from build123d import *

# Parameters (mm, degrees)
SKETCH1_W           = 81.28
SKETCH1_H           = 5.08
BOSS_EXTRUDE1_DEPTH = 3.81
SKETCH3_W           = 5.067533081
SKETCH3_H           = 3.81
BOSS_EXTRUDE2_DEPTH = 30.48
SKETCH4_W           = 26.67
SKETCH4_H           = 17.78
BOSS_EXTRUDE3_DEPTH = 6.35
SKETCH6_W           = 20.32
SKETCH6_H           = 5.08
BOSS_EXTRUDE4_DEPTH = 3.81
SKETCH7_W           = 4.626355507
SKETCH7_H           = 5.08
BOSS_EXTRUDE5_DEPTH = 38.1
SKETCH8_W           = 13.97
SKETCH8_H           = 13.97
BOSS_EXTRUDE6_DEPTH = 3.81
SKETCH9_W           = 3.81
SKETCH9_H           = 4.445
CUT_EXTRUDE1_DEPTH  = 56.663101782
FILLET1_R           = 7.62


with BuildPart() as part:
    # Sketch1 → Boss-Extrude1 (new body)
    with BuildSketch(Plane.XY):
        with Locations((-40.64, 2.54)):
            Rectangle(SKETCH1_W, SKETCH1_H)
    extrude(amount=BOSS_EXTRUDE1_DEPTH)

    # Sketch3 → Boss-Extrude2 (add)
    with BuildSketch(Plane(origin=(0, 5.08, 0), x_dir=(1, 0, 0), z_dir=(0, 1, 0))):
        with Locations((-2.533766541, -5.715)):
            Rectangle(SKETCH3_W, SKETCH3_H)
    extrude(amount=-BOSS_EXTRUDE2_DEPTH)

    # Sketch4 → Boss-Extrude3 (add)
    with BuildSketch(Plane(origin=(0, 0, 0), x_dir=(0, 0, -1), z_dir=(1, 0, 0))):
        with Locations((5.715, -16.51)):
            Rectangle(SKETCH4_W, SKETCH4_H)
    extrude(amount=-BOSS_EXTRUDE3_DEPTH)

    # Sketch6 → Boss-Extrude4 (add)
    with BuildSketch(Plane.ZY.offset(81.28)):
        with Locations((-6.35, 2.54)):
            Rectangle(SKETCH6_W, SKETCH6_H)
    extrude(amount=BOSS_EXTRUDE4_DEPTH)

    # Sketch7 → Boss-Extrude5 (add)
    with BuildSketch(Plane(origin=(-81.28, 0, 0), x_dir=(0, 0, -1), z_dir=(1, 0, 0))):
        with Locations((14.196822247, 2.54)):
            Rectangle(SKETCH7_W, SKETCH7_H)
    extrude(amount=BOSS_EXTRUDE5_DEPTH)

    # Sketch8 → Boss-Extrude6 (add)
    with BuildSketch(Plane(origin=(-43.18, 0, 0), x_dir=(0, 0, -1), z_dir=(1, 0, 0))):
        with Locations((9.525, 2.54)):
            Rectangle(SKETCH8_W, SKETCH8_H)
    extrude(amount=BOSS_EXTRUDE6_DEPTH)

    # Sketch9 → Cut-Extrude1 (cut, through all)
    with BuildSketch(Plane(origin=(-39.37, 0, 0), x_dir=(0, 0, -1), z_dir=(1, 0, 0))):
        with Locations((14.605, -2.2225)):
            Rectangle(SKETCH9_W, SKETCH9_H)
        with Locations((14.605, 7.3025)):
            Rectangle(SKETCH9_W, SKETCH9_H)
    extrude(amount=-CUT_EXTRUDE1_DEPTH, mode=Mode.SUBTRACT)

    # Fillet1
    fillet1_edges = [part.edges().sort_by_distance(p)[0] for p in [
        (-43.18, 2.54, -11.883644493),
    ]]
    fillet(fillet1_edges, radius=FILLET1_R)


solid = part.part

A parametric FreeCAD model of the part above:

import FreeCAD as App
import Part
import Sketcher
from FreeCAD import Vector
Q = App.Units.Quantity


def edges_at(feature, points):
    """Names of the edges that pass closest to the given points."""
    edges = feature.Shape.Edges
    near = lambda p: min(range(len(edges)), key=lambda i: edges[i].distToShape(Part.Vertex(*p))[0])
    return sorted({f"Edge{near(p) + 1}" for p in points})

doc = App.newDocument("Part")
body = doc.addObject("PartDesign::Body", "Body")

sketch1 = body.newObject("Sketcher::SketchObject", "Sketch")
sketch1.AttachmentSupport = (doc.getObject("XY_Plane"), [""])
sketch1.MapMode = "FlatFace"
sketch1.addGeometry([
    Part.LineSegment(Vector(-81, 5, 0), Vector(-81, 0, 0)),
    Part.LineSegment(Vector(-81, 0, 0), Vector(0, 0, 0)),
    Part.LineSegment(Vector(0, 0, 0), Vector(0, 5, 0)),
    Part.LineSegment(Vector(0, 5, 0), Vector(-81, 5, 0)),
], False)
sketch1.addConstraint([
    Sketcher.Constraint("Coincident", 0, 2, 1, 1),
    Sketcher.Constraint("Coincident", 1, 2, 2, 1),
    Sketcher.Constraint("Coincident", 2, 2, 3, 1),
    Sketcher.Constraint("Coincident", 3, 2, 0, 1),
    Sketcher.Constraint("Vertical", 0),
    Sketcher.Constraint("Horizontal", 1),
    Sketcher.Constraint("Vertical", 2),
    Sketcher.Constraint("Horizontal", 3),
    Sketcher.Constraint("Coincident", 1, 2, -1, 1),
    Sketcher.Constraint("DistanceX", 1, 1, 1, 2, Q("3.2 in")),
    Sketcher.Constraint("DistanceY", 0, 2, 0, 1, Q("0.2 in")),
])
pad1 = body.newObject("PartDesign::Pad", "Pad")
pad1.Profile = sketch1
pad1.Length = Q("0.15 in")

sketch2 = body.newObject("Sketcher::SketchObject", "Sketch001")
sketch2.AttachmentSupport = (doc.getObject("XZ_Plane"), [""])
sketch2.MapMode = "FlatFace"
sketch2.AttachmentOffset = App.Placement(Vector(0, 0, -0.2 * 25.4), App.Rotation())
sketch2.addGeometry([
    Part.LineSegment(Vector(-5.1, 3.8, 0), Vector(-5.1, 7.6, 0)),
    Part.LineSegment(Vector(-5.1, 7.6, 0), Vector(0, 7.6, 0)),
    Part.LineSegment(Vector(0, 7.6, 0), Vector(0, 3.8, 0)),
    Part.LineSegment(Vector(0, 3.8, 0), Vector(-5.1, 3.8, 0)),
], False)
sketch2.addConstraint([
    Sketcher.Constraint("Coincident", 0, 2, 1, 1),
    Sketcher.Constraint("Coincident", 1, 2, 2, 1),
    Sketcher.Constraint("Coincident", 2, 2, 3, 1),
    Sketcher.Constraint("Coincident", 3, 2, 0, 1),
    Sketcher.Constraint("Vertical", 0),
    Sketcher.Constraint("Horizontal", 1),
    Sketcher.Constraint("Vertical", 2),
    Sketcher.Constraint("Horizontal", 3),
    Sketcher.Constraint("PointOnObject", 1, 2, -2),
    Sketcher.Constraint("DistanceY", 0, 1, 0, 2, Q("0.15 in")),
    Sketcher.Constraint("DistanceY", -1, 1, 0, 2, Q("0.3 in")),
    Sketcher.Constraint("DistanceX", 1, 1, 1, 2, Q("5.067533 mm")),
])
pad2 = body.newObject("PartDesign::Pad", "Pad001")
pad2.Profile = sketch2
pad2.Length = Q("1.2 in")

sketch3 = body.newObject("Sketcher::SketchObject", "Sketch002")
sketch3.AttachmentSupport = (doc.getObject("YZ_Plane"), [""])
sketch3.MapMode = "FlatFace"
sketch3.addGeometry([
    Part.LineSegment(Vector(-8, 8, 0), Vector(-25, 8, 0)),
    Part.LineSegment(Vector(-25, 8, 0), Vector(-25, -19, 0)),
    Part.LineSegment(Vector(-25, -19, 0), Vector(-8, -19, 0)),
    Part.LineSegment(Vector(-8, -19, 0), Vector(-8, 8, 0)),
], False)
sketch3.addConstraint([
    Sketcher.Constraint("Coincident", 0, 2, 1, 1),
    Sketcher.Constraint("Coincident", 1, 2, 2, 1),
    Sketcher.Constraint("Coincident", 2, 2, 3, 1),
    Sketcher.Constraint("Coincident", 3, 2, 0, 1),
    Sketcher.Constraint("Horizontal", 0),
    Sketcher.Constraint("Vertical", 1),
    Sketcher.Constraint("Horizontal", 2),
    Sketcher.Constraint("Vertical", 3),
    Sketcher.Constraint("DistanceX", 0, 2, 0, 1, Q("0.7 in")),
    Sketcher.Constraint("DistanceX", 0, 2, -1, 1, Q("1 in")),
    Sketcher.Constraint("DistanceY", 1, 2, 1, 1, Q("1.05 in")),
    Sketcher.Constraint("DistanceY", -1, 1, 0, 2, Q("0.3 in")),
])
pad3 = body.newObject("PartDesign::Pad", "Pad002")
pad3.Profile = sketch3
pad3.Length = Q("0.25 in")
pad3.Reversed = True

sketch4 = body.newObject("Sketcher::SketchObject", "Sketch003")
sketch4.AttachmentSupport = (doc.getObject("YZ_Plane"), [""])
sketch4.MapMode = "FlatFace"
sketch4.AttachmentOffset = App.Placement(Vector(0, 0, -3.2 * 25.4), App.Rotation())
sketch4.addGeometry([
    Part.LineSegment(Vector(5, -17, 0), Vector(0, -17, 0)),
    Part.LineSegment(Vector(0, -17, 0), Vector(0, 4, 0)),
    Part.LineSegment(Vector(0, 4, 0), Vector(5, 4, 0)),
    Part.LineSegment(Vector(5, 4, 0), Vector(5, -17, 0)),
], False)
sketch4.addConstraint([
    Sketcher.Constraint("Coincident", 0, 2, 1, 1),
    Sketcher.Constraint("Coincident", 1, 2, 2, 1),
    Sketcher.Constraint("Coincident", 2, 2, 3, 1),
    Sketcher.Constraint("Coincident", 3, 2, 0, 1),
    Sketcher.Constraint("Horizontal", 0),
    Sketcher.Constraint("Vertical", 1),
    Sketcher.Constraint("Horizontal", 2),
    Sketcher.Constraint("Vertical", 3),
    Sketcher.Constraint("PointOnObject", 0, 2, -2),
    Sketcher.Constraint("DistanceX", 0, 2, 0, 1, Q("0.2 in")),
    Sketcher.Constraint("DistanceY", 1, 1, 1, 2, Q("0.8 in")),
    Sketcher.Constraint("DistanceY", 0, 2, -1, 1, Q("0.65 in")),
])
pad4 = body.newObject("PartDesign::Pad", "Pad003")
pad4.Profile = sketch4
pad4.Length = Q("0.15 in")
pad4.Reversed = True

sketch5 = body.newObject("Sketcher::SketchObject", "Sketch004")
sketch5.AttachmentSupport = (doc.getObject("YZ_Plane"), [""])
sketch5.MapMode = "FlatFace"
sketch5.AttachmentOffset = App.Placement(Vector(0, 0, -3.2 * 25.4), App.Rotation())
sketch5.addGeometry([
    Part.LineSegment(Vector(5.1, -11.9, 0), Vector(0, -11.9, 0)),
    Part.LineSegment(Vector(0, -11.9, 0), Vector(0, -16.5, 0)),
    Part.LineSegment(Vector(0, -16.5, 0), Vector(5.1, -16.5, 0)),
    Part.LineSegment(Vector(5.1, -16.5, 0), Vector(5.1, -11.9, 0)),
], False)
sketch5.addConstraint([
    Sketcher.Constraint("Coincident", 0, 2, 1, 1),
    Sketcher.Constraint("Coincident", 1, 2, 2, 1),
    Sketcher.Constraint("Coincident", 2, 2, 3, 1),
    Sketcher.Constraint("Coincident", 3, 2, 0, 1),
    Sketcher.Constraint("Horizontal", 0),
    Sketcher.Constraint("Vertical", 1),
    Sketcher.Constraint("Horizontal", 2),
    Sketcher.Constraint("Vertical", 3),
    Sketcher.Constraint("PointOnObject", 0, 2, -2),
    Sketcher.Constraint("DistanceX", 0, 2, 0, 1, Q("0.2 in")),
    Sketcher.Constraint("DistanceY", 1, 2, -1, 1, Q("0.65 in")),
    Sketcher.Constraint("DistanceY", 1, 2, 1, 1, Q("4.626356 mm")),
])
pad5 = body.newObject("PartDesign::Pad", "Pad004")
pad5.Profile = sketch5
pad5.Length = Q("1.5 in")

sketch6 = body.newObject("Sketcher::SketchObject", "Sketch005")
sketch6.AttachmentSupport = (doc.getObject("YZ_Plane"), [""])
sketch6.MapMode = "FlatFace"
sketch6.AttachmentOffset = App.Placement(Vector(0, 0, -1.7 * 25.4), App.Rotation())
sketch6.addGeometry([
    Part.LineSegment(Vector(10, -3, 0), Vector(-4, -3, 0)),
    Part.LineSegment(Vector(-4, -3, 0), Vector(-4, -17, 0)),
    Part.LineSegment(Vector(-4, -17, 0), Vector(10, -17, 0)),
    Part.LineSegment(Vector(10, -17, 0), Vector(10, -3, 0)),
], False)
sketch6.addConstraint([
    Sketcher.Constraint("Coincident", 0, 2, 1, 1),
    Sketcher.Constraint("Coincident", 1, 2, 2, 1),
    Sketcher.Constraint("Coincident", 2, 2, 3, 1),
    Sketcher.Constraint("Coincident", 3, 2, 0, 1),
    Sketcher.Constraint("Horizontal", 0),
    Sketcher.Constraint("Vertical", 1),
    Sketcher.Constraint("Horizontal", 2),
    Sketcher.Constraint("Vertical", 3),
    Sketcher.Constraint("Equal", 2, 1),
    Sketcher.Constraint("DistanceX", 0, 2, 0, 1, Q("0.55 in")),
    Sketcher.Constraint("DistanceY", 0, 2, -1, 1, Q("0.1 in")),
    Sketcher.Constraint("DistanceX", 0, 2, -1, 1, Q("0.175 in")),
])
pad6 = body.newObject("PartDesign::Pad", "Pad005")
pad6.Profile = sketch6
pad6.Length = Q("0.15 in")

sketch7 = body.newObject("Sketcher::SketchObject", "Sketch006")
sketch7.AttachmentSupport = (doc.getObject("YZ_Plane"), [""])
sketch7.MapMode = "FlatFace"
sketch7.AttachmentOffset = App.Placement(Vector(0, 0, -1.55 * 25.4), App.Rotation())
sketch7.addGeometry([
    Part.LineSegment(Vector(0, -12.7, 0), Vector(-4.4, -12.7, 0)),
    Part.LineSegment(Vector(-4.4, -12.7, 0), Vector(-4.4, -16.5, 0)),
    Part.LineSegment(Vector(-4.4, -16.5, 0), Vector(0, -16.5, 0)),
    Part.LineSegment(Vector(0, -16.5, 0), Vector(0, -12.7, 0)),
    Part.LineSegment(Vector(9.5, -12.7, 0), Vector(5.1, -12.7, 0)),
    Part.LineSegment(Vector(5.1, -12.7, 0), Vector(5.1, -16.5, 0)),
    Part.LineSegment(Vector(5.1, -16.5, 0), Vector(9.5, -16.5, 0)),
    Part.LineSegment(Vector(9.5, -16.5, 0), Vector(9.5, -12.7, 0)),
], False)
sketch7.addConstraint([
    Sketcher.Constraint("Coincident", 0, 2, 1, 1),
    Sketcher.Constraint("Coincident", 1, 2, 2, 1),
    Sketcher.Constraint("Coincident", 2, 2, 3, 1),
    Sketcher.Constraint("Coincident", 3, 2, 0, 1),
    Sketcher.Constraint("Coincident", 4, 2, 5, 1),
    Sketcher.Constraint("Coincident", 5, 2, 6, 1),
    Sketcher.Constraint("Coincident", 6, 2, 7, 1),
    Sketcher.Constraint("Coincident", 7, 2, 4, 1),
    Sketcher.Constraint("Horizontal", 0),
    Sketcher.Constraint("Vertical", 1),
    Sketcher.Constraint("Horizontal", 2),
    Sketcher.Constraint("Vertical", 3),
    Sketcher.Constraint("Horizontal", 4),
    Sketcher.Constraint("Vertical", 5),
    Sketcher.Constraint("Horizontal", 6),
    Sketcher.Constraint("Vertical", 7),
    Sketcher.Constraint("PointOnObject", 2, 2, -2),
    Sketcher.Constraint("Horizontal", 3, 2, 4, 2),
    Sketcher.Constraint("Horizontal", 2, 2, 5, 2),
    Sketcher.Constraint("Equal", 2, 4),
    Sketcher.Constraint("DistanceY", 1, 2, 1, 1, Q("0.15 in")),
    Sketcher.Constraint("DistanceY", 0, 2, -1, 1, Q("0.5 in")),
    Sketcher.Constraint("DistanceX", -1, 1, 4, 2, Q("0.2 in")),
    Sketcher.Constraint("DistanceX", 0, 2, 0, 1, Q("0.175 in")),
])
pocket1 = body.newObject("PartDesign::Pocket", "Pocket")
pocket1.Profile = sketch7
pocket1.Type = "ThroughAll"
doc.recompute()

fillet = body.newObject("PartDesign::Fillet", "Fillet")
fillet.Base = (pocket1, edges_at(pocket1, [(-43.18, 2.54, -11.884)]))
fillet.Radius = Q("0.3 in")

doc.recompute()
